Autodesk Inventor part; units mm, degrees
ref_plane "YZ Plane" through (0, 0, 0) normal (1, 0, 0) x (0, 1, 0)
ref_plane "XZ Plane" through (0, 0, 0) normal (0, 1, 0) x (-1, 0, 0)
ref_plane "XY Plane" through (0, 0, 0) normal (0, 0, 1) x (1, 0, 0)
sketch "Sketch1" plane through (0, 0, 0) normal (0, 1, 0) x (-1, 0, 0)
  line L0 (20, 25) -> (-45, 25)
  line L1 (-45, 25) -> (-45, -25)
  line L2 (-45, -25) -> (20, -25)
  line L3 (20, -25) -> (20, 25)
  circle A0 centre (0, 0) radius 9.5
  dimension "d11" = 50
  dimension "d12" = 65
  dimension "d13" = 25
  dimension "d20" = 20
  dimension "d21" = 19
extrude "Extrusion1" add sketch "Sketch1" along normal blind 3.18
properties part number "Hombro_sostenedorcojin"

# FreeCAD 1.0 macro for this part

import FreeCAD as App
import Part
import Sketcher
from FreeCAD import Vector

doc = App.newDocument("Part")
body = doc.addObject("PartDesign::Body", "Body")

sketch1 = doc.addObject("Sketcher::SketchObject", "Sketch")
body.addObject(sketch1)
sketch1.AttachmentSupport = (doc.XZ_Plane, [""])
sketch1.MapMode = "FlatFace"
sketch1.addGeometry([
    Part.LineSegment(Vector(-20, -25, 0), Vector(-20, 25, 0)),
    Part.LineSegment(Vector(-20, 25, 0), Vector(45, 25, 0)),
    Part.LineSegment(Vector(45, 25, 0), Vector(45, -25, 0)),
    Part.LineSegment(Vector(45, -25, 0), Vector(-20, -25, 0)),
    Part.Circle(Vector(0, 0, 0), Vector(0, 0, 1), 9.5),
], False)
sketch1.addConstraint([
    Sketcher.Constraint("Coincident", 0, 2, 1, 1),
    Sketcher.Constraint("Coincident", 1, 2, 2, 1),
    Sketcher.Constraint("Coincident", 2, 2, 3, 1),
    Sketcher.Constraint("Coincident", 3, 2, 0, 1),
    Sketcher.Constraint("Vertical", 0),
    Sketcher.Constraint("Horizontal", 1),
    Sketcher.Constraint("Vertical", 2),
    Sketcher.Constraint("Horizontal", 3),
    Sketcher.Constraint("Coincident", 4, 3, -1, 1),
    Sketcher.Constraint("Diameter", 4, 19.0),
    Sketcher.Constraint("DistanceX", 1, 1, 1, 2, 65.0),
    Sketcher.Constraint("DistanceY", 0, 1, 0, 2, 50.0),
    Sketcher.Constraint("DistanceX", 0, 2, -1, 1, 20.0),
    Sketcher.Constraint("DistanceY", -1, 1, 0, 2, 25.0),
])
pad1 = doc.addObject("PartDesign::Pad", "Pad")
body.addObject(pad1)
pad1.Profile = sketch1
pad1.Length = 3.18
pad1.Reversed = True

doc.recompute()
